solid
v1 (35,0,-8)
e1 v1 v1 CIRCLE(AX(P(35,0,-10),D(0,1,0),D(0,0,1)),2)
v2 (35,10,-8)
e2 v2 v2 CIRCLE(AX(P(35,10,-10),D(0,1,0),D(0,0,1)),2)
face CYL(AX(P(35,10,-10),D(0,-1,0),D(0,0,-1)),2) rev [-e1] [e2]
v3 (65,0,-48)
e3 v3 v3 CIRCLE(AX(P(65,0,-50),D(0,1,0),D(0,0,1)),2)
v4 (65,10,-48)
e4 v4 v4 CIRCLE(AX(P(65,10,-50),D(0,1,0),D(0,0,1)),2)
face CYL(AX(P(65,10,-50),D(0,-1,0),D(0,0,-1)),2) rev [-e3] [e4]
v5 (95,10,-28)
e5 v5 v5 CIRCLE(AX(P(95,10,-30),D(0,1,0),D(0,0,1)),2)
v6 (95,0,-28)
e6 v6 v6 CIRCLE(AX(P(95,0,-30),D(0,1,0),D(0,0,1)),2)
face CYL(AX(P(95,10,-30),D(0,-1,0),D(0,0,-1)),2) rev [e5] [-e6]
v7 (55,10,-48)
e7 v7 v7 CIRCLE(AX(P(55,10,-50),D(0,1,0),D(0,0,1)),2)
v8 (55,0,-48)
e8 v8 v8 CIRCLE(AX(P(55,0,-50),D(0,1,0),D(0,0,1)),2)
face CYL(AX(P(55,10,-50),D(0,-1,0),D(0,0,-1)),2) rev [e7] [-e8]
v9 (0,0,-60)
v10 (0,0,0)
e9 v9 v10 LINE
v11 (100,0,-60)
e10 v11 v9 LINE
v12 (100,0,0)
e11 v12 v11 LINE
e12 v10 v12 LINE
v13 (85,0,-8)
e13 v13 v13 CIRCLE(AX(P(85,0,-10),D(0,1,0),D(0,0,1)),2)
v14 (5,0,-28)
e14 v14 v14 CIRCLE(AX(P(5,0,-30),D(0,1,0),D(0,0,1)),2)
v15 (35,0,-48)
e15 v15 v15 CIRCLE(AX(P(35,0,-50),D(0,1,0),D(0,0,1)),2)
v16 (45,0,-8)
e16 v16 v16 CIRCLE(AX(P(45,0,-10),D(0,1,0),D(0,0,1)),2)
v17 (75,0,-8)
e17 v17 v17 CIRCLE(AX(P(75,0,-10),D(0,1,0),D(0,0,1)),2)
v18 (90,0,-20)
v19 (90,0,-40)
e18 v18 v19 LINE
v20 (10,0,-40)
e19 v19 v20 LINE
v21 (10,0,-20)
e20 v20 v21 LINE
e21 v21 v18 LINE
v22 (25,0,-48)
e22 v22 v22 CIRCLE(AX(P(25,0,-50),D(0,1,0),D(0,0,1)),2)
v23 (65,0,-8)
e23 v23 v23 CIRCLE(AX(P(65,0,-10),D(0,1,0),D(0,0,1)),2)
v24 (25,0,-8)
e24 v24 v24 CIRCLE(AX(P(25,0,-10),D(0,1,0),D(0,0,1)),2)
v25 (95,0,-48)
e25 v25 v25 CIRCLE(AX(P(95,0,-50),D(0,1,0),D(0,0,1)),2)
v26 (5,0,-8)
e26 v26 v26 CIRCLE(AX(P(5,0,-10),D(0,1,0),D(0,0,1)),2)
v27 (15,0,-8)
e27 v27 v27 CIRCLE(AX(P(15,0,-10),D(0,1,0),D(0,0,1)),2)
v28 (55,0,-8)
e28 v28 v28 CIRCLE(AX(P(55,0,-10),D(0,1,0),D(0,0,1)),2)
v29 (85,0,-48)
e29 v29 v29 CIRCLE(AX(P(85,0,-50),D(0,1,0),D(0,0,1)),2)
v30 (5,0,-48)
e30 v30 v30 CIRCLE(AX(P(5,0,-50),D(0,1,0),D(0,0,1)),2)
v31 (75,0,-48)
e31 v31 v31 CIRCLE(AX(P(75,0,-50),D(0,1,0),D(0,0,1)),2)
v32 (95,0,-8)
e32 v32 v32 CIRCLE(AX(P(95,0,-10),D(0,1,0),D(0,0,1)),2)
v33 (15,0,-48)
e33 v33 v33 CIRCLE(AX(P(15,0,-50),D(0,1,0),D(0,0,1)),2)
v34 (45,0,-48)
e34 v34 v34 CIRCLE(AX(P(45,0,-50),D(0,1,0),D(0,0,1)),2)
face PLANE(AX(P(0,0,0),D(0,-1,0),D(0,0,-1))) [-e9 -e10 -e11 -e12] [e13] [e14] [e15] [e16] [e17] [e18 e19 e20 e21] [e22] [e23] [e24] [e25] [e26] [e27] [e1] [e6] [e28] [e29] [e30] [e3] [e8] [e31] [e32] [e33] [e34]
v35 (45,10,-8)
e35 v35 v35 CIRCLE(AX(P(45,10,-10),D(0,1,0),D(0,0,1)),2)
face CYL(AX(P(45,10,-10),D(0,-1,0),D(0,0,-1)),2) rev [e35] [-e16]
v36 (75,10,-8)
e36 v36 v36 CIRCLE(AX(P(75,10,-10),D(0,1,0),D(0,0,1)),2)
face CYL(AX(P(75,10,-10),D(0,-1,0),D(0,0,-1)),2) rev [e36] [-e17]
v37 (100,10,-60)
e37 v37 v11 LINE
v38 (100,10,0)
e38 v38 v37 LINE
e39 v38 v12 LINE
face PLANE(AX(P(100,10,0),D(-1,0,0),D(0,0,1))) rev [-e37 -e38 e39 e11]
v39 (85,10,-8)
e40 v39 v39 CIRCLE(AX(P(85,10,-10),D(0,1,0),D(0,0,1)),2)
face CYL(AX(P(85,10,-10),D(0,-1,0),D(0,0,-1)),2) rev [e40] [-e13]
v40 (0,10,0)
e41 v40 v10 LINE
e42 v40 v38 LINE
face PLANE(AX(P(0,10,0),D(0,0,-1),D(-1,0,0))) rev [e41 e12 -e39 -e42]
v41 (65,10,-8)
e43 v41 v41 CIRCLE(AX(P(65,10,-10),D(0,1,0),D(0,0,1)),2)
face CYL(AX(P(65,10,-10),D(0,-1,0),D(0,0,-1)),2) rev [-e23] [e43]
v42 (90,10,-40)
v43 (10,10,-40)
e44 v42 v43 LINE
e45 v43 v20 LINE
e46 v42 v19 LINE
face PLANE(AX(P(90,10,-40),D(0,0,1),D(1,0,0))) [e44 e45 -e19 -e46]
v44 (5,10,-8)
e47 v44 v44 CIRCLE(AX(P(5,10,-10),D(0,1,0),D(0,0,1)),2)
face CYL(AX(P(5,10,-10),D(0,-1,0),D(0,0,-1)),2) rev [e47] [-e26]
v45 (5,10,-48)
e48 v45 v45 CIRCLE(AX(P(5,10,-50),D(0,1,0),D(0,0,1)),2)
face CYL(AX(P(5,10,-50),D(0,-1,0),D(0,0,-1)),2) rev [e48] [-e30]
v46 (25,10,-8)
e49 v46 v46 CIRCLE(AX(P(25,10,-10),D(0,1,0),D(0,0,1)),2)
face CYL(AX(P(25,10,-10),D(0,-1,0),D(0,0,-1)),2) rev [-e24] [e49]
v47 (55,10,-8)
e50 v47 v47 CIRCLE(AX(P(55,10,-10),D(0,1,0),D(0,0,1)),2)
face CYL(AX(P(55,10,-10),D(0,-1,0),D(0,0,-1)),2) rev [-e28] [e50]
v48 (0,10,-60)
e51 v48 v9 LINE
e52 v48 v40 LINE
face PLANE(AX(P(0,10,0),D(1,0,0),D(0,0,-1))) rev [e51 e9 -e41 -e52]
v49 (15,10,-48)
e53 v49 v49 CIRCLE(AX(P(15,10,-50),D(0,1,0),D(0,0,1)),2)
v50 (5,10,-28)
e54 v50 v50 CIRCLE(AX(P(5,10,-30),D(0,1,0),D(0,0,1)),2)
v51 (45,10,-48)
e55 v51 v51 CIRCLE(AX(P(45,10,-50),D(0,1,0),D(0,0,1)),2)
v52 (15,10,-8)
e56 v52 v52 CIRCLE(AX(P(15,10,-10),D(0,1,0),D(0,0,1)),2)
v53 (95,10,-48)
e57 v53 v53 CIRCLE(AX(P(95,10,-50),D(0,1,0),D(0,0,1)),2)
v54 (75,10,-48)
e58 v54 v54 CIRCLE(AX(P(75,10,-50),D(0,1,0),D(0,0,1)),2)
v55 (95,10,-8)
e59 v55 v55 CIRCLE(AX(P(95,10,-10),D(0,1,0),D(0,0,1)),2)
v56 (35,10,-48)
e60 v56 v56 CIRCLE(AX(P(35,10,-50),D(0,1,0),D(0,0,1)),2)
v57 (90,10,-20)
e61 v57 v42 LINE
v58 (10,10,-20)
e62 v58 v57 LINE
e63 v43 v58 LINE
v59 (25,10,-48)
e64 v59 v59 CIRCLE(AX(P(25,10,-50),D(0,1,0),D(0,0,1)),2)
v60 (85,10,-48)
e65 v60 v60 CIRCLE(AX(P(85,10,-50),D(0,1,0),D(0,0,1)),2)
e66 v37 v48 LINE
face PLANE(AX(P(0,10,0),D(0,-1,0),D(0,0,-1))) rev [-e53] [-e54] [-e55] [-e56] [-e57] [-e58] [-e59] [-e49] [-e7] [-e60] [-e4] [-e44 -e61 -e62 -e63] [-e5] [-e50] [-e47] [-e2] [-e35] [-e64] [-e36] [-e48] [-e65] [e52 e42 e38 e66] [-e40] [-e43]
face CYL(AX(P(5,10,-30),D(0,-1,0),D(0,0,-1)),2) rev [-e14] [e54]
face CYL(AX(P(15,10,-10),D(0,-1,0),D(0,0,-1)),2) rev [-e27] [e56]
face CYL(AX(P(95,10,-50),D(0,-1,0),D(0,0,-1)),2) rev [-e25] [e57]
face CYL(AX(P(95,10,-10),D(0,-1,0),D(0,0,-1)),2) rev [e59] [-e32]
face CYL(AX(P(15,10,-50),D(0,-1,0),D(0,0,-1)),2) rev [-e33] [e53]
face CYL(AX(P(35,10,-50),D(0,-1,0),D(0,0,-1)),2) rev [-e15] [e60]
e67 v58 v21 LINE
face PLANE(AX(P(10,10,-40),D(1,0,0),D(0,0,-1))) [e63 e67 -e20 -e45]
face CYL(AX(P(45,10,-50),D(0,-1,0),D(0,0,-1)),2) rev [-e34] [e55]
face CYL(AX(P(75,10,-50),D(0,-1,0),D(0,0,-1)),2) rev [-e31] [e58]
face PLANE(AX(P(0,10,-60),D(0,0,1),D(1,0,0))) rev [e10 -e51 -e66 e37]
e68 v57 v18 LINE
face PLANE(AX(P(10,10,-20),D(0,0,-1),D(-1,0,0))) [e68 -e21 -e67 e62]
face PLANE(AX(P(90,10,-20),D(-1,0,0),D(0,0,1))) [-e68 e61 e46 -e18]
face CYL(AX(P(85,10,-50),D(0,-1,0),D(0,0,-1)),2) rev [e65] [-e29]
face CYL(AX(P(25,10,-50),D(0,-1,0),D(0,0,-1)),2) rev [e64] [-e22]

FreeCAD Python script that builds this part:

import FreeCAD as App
import Part
import Sketcher
from FreeCAD import Vector


def add_polygon(sketch, points):
    """Adds a closed chain of lines whose ends are joined by coincident constraints."""
    first, n = sketch.GeometryCount, len(points)
    for a, b in zip(points, points[1:] + points[:1]):
        sketch.addGeometry(Part.LineSegment(App.Vector(*a, 0), App.Vector(*b, 0)), False)
    for i in range(n):
        sketch.addConstraint(Sketcher.Constraint("Coincident", first + i, 2, first + (i + 1) % n, 1))

doc = App.newDocument("Part")
body = doc.addObject("PartDesign::Body", "Body")

sketch1 = body.newObject("Sketcher::SketchObject", "Sketch")
sketch1.AttachmentSupport = (doc.getObject("XZ_Plane"), [""])
sketch1.MapMode = "FlatFace"
add_polygon(sketch1, [(0, -60), (0, 0), (100, 0), (100, -60)])
sketch1.addGeometry(Part.Circle(Vector(5, -10, 0), Vector(0, 0, 1), 2), False)
sketch1.addGeometry(Part.Circle(Vector(15, -10, 0), Vector(0, 0, 1), 2), False)
sketch1.addGeometry(Part.Circle(Vector(25, -10, 0), Vector(0, 0, 1), 2), False)
sketch1.addGeometry(Part.Circle(Vector(35, -10, 0), Vector(0, 0, 1), 2), False)
sketch1.addGeometry(Part.Circle(Vector(45, -10, 0), Vector(0, 0, 1), 2), False)
sketch1.addGeometry(Part.Circle(Vector(55, -10, 0), Vector(0, 0, 1), 2), False)
sketch1.addGeometry(Part.Circle(Vector(65, -10, 0), Vector(0, 0, 1), 2), False)
sketch1.addGeometry(Part.Circle(Vector(75, -10, 0), Vector(0, 0, 1), 2), False)
sketch1.addGeometry(Part.Circle(Vector(85, -10, 0), Vector(0, 0, 1), 2), False)
sketch1.addGeometry(Part.Circle(Vector(95, -10, 0), Vector(0, 0, 1), 2), False)
sketch1.addGeometry(Part.Circle(Vector(5, -30, 0), Vector(0, 0, 1), 2), False)
sketch1.addGeometry(Part.Circle(Vector(5, -50, 0), Vector(0, 0, 1), 2), False)
sketch1.addGeometry(Part.Circle(Vector(15, -50, 0), Vector(0, 0, 1), 2), False)
sketch1.addGeometry(Part.Circle(Vector(25, -50, 0), Vector(0, 0, 1), 2), False)
sketch1.addGeometry(Part.Circle(Vector(35, -50, 0), Vector(0, 0, 1), 2), False)
sketch1.addGeometry(Part.Circle(Vector(45, -50, 0), Vector(0, 0, 1), 2), False)
add_polygon(sketch1, [(90, -20), (10, -20), (10, -40), (90, -40)])
sketch1.addGeometry(Part.Circle(Vector(95, -30, 0), Vector(0, 0, 1), 2), False)
sketch1.addGeometry(Part.Circle(Vector(55, -50, 0), Vector(0, 0, 1), 2), False)
sketch1.addGeometry(Part.Circle(Vector(65, -50, 0), Vector(0, 0, 1), 2), False)
sketch1.addGeometry(Part.Circle(Vector(75, -50, 0), Vector(0, 0, 1), 2), False)
sketch1.addGeometry(Part.Circle(Vector(85, -50, 0), Vector(0, 0, 1), 2), False)
sketch1.addGeometry(Part.Circle(Vector(95, -50, 0), Vector(0, 0, 1), 2), False)
sketch1.addConstraint(Sketcher.Constraint("Vertical", 0))
sketch1.addConstraint(Sketcher.Constraint("Horizontal", 1))
sketch1.addConstraint(Sketcher.Constraint("Vertical", 2))
sketch1.addConstraint(Sketcher.Constraint("Horizontal", 3))
sketch1.addConstraint(Sketcher.Constraint("Horizontal", 20))
sketch1.addConstraint(Sketcher.Constraint("Vertical", 21))
sketch1.addConstraint(Sketcher.Constraint("Horizontal", 22))
sketch1.addConstraint(Sketcher.Constraint("Vertical", 23))
sketch1.addConstraint(Sketcher.Constraint("Coincident", 0, 2, -1, 1))
sketch1.addConstraint(Sketcher.Constraint("Equal", 4, 5))
sketch1.addConstraint(Sketcher.Constraint("Equal", 5, 6))
sketch1.addConstraint(Sketcher.Constraint("Equal", 6, 7))
sketch1.addConstraint(Sketcher.Constraint("Equal", 7, 8))
sketch1.addConstraint(Sketcher.Constraint("Equal", 8, 9))
sketch1.addConstraint(Sketcher.Constraint("Equal", 9, 10))
sketch1.addConstraint(Sketcher.Constraint("Equal", 10, 11))
sketch1.addConstraint(Sketcher.Constraint("Equal", 11, 12))
sketch1.addConstraint(Sketcher.Constraint("Equal", 12, 13))
sketch1.addConstraint(Sketcher.Constraint("Equal", 13, 14))
sketch1.addConstraint(Sketcher.Constraint("Equal", 14, 15))
sketch1.addConstraint(Sketcher.Constraint("Equal", 15, 16))
sketch1.addConstraint(Sketcher.Constraint("Equal", 16, 17))
sketch1.addConstraint(Sketcher.Constraint("Equal", 17, 18))
sketch1.addConstraint(Sketcher.Constraint("Equal", 18, 19))
sketch1.addConstraint(Sketcher.Constraint("Equal", 19, 24))
sketch1.addConstraint(Sketcher.Constraint("Equal", 24, 25))
sketch1.addConstraint(Sketcher.Constraint("Equal", 25, 26))
sketch1.addConstraint(Sketcher.Constraint("Equal", 26, 27))
sketch1.addConstraint(Sketcher.Constraint("Equal", 27, 28))
sketch1.addConstraint(Sketcher.Constraint("Equal", 28, 29))
sketch1.addConstraint(Sketcher.Constraint("Horizontal", 4, 3, 5, 3))
sketch1.addConstraint(Sketcher.Constraint("Horizontal", 5, 3, 6, 3))
sketch1.addConstraint(Sketcher.Constraint("Horizontal", 6, 3, 7, 3))
sketch1.addConstraint(Sketcher.Constraint("Horizontal", 7, 3, 8, 3))
sketch1.addConstraint(Sketcher.Constraint("Horizontal", 8, 3, 9, 3))
sketch1.addConstraint(Sketcher.Constraint("Horizontal", 9, 3, 10, 3))
sketch1.addConstraint(Sketcher.Constraint("Horizontal", 10, 3, 11, 3))
sketch1.addConstraint(Sketcher.Constraint("Horizontal", 11, 3, 12, 3))
sketch1.addConstraint(Sketcher.Constraint("Horizontal", 12, 3, 13, 3))
sketch1.addConstraint(Sketcher.Constraint("Horizontal", 15, 3, 16, 3))
sketch1.addConstraint(Sketcher.Constraint("Horizontal", 16, 3, 17, 3))
sketch1.addConstraint(Sketcher.Constraint("Horizontal", 17, 3, 18, 3))
sketch1.addConstraint(Sketcher.Constraint("Horizontal", 18, 3, 19, 3))
sketch1.addConstraint(Sketcher.Constraint("Horizontal", 14, 3, 24, 3))
sketch1.addConstraint(Sketcher.Constraint("Horizontal", 19, 3, 25, 3))
sketch1.addConstraint(Sketcher.Constraint("Horizontal", 25, 3, 26, 3))
sketch1.addConstraint(Sketcher.Constraint("Horizontal", 26, 3, 27, 3))
sketch1.addConstraint(Sketcher.Constraint("Horizontal", 27, 3, 28, 3))
sketch1.addConstraint(Sketcher.Constraint("Horizontal", 28, 3, 29, 3))
sketch1.addConstraint(Sketcher.Constraint("Vertical", 4, 3, 14, 3))
sketch1.addConstraint(Sketcher.Constraint("Vertical", 14, 3, 15, 3))
sketch1.addConstraint(Sketcher.Constraint("Vertical", 5, 3, 16, 3))
sketch1.addConstraint(Sketcher.Constraint("Vertical", 6, 3, 17, 3))
sketch1.addConstraint(Sketcher.Constraint("Vertical", 7, 3, 18, 3))
sketch1.addConstraint(Sketcher.Constraint("Vertical", 8, 3, 19, 3))
sketch1.addConstraint(Sketcher.Constraint("Vertical", 13, 3, 24, 3))
sketch1.addConstraint(Sketcher.Constraint("Vertical", 9, 3, 25, 3))
sketch1.addConstraint(Sketcher.Constraint("Vertical", 10, 3, 26, 3))
sketch1.addConstraint(Sketcher.Constraint("Vertical", 11, 3, 27, 3))
sketch1.addConstraint(Sketcher.Constraint("Vertical", 12, 3, 28, 3))
sketch1.addConstraint(Sketcher.Constraint("Vertical", 24, 3, 29, 3))
sketch1.addConstraint(Sketcher.Constraint("Diameter", 4, 4.0))
sketch1.addConstraint(Sketcher.Constraint("DistanceX", 1, 1, 1, 2, 100.0))
sketch1.addConstraint(Sketcher.Constraint("DistanceX", 20, 2, 20, 1, 80.0))
sketch1.addConstraint(Sketcher.Constraint("DistanceY", 0, 1, 0, 2, 60.0))
sketch1.addConstraint(Sketcher.Constraint("DistanceY", 21, 2, 21, 1, 20.0))
sketch1.addConstraint(Sketcher.Constraint("DistanceX", -1, 1, 4, 3, 5.0))
sketch1.addConstraint(Sketcher.Constraint("DistanceY", 4, 3, -1, 1, 10.0))
sketch1.addConstraint(Sketcher.Constraint("DistanceX", -1, 1, 5, 3, 15.0))
sketch1.addConstraint(Sketcher.Constraint("DistanceX", -1, 1, 6, 3, 25.0))
sketch1.addConstraint(Sketcher.Constraint("DistanceX", -1, 1, 7, 3, 35.0))
sketch1.addConstraint(Sketcher.Constraint("DistanceX", -1, 1, 8, 3, 45.0))
sketch1.addConstraint(Sketcher.Constraint("DistanceX", -1, 1, 9, 3, 55.0))
sketch1.addConstraint(Sketcher.Constraint("DistanceX", -1, 1, 10, 3, 65.0))
sketch1.addConstraint(Sketcher.Constraint("DistanceX", -1, 1, 11, 3, 75.0))
sketch1.addConstraint(Sketcher.Constraint("DistanceX", -1, 1, 12, 3, 85.0))
sketch1.addConstraint(Sketcher.Constraint("DistanceX", -1, 1, 13, 3, 95.0))
sketch1.addConstraint(Sketcher.Constraint("DistanceY", 14, 3, -1, 1, 30.0))
sketch1.addConstraint(Sketcher.Constraint("DistanceY", 15, 3, -1, 1, 50.0))
sketch1.addConstraint(Sketcher.Constraint("DistanceX", -1, 1, 20, 2, 10.0))
sketch1.addConstraint(Sketcher.Constraint("DistanceY", 20, 2, -1, 1, 20.0))
pad1 = body.newObject("PartDesign::Pad", "Pad")
pad1.Profile = sketch1
pad1.Length = 10
pad1.Reversed = True

doc.recompute()
